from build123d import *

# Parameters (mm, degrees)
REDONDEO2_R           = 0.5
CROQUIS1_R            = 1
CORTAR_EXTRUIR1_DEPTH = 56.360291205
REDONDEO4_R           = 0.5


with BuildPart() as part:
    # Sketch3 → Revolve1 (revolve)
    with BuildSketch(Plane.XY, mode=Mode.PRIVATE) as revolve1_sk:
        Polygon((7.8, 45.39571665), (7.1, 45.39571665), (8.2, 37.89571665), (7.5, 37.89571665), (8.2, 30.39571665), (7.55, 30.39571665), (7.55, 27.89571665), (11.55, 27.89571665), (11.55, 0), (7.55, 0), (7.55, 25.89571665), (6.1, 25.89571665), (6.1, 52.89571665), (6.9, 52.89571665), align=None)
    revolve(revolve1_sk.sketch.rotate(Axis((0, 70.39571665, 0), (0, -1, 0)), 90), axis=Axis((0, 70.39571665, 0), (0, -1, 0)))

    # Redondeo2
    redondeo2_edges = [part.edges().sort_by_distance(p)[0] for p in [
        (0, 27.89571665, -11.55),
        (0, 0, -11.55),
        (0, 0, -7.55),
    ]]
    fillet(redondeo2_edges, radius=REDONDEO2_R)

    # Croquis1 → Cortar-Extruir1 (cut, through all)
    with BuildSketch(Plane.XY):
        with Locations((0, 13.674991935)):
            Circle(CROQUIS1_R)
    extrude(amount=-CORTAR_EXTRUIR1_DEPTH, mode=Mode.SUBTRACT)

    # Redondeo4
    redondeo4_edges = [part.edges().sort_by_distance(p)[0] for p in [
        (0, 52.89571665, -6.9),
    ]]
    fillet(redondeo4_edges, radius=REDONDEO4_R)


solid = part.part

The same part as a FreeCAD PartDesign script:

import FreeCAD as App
import Part
import Sketcher

V = App.Vector


def edges_at(feature, points):
    """Names of the edges that pass closest to the given points."""
    edges = feature.Shape.Edges
    near = lambda p: min(range(len(edges)), key=lambda i: edges[i].distToShape(Part.Vertex(*p))[0])
    return sorted({f"Edge{near(p) + 1}" for p in points})

doc = App.newDocument("Part")
params = doc.addObject("Spreadsheet::Sheet", "Params")
for row, (alias, value) in enumerate([
    ("sketch1_width", "4 mm"),
    ("sketch1_height", "27 mm"),
    ("sketch1_width2", "0.7 mm"),
    ("sketch1_width3", "0.8 mm"),
    ("sketch1_height2", "2.5 mm"),
    ("revolution_angle", "360 deg"),
    ("fillet_radius", "0.5 mm"),
    ("sketch2_diameter", "2 mm"),
    ("fillet2_radius", "0.5 mm"),
], start=1):
    params.set(f"A{row}", alias)
    params.set(f"B{row}", "=" + value)
    params.setAlias(f"B{row}", alias)

body = doc.addObject("PartDesign::Body", "Body")

# Sketch on XY plane
sketch1 = body.newObject("Sketcher::SketchObject", "Sketch")
sketch1.AttachmentSupport = (doc.getObject("XY_Plane"), [""])
sketch1.MapMode = "FlatFace"
sketch1.addGeometry(Part.LineSegment(V(7.1, 45.4, 0), V(7.8, 45.4, 0)), False)
sketch1.addGeometry(Part.LineSegment(V(7.8, 45.4, 0), V(6.9, 52.9, 0)), False)
sketch1.addGeometry(Part.LineSegment(V(6.9, 52.9, 0), V(6.1, 52.9, 0)), False)
sketch1.addGeometry(Part.LineSegment(V(6.1, 52.9, 0), V(6.1, 25.9, 0)), False)
sketch1.addGeometry(Part.LineSegment(V(6.1, 25.9, 0), V(7.5, 25.9, 0)), False)
sketch1.addGeometry(Part.LineSegment(V(7.5, 25.9, 0), V(7.5, 0, 0)), False)
sketch1.addGeometry(Part.LineSegment(V(7.5, 0, 0), V(11.6, 0, 0)), False)
sketch1.addGeometry(Part.LineSegment(V(11.6, 0, 0), V(11.6, 27.9, 0)), False)
sketch1.addGeometry(Part.LineSegment(V(11.6, 27.9, 0), V(7.5, 27.9, 0)), False)
sketch1.addGeometry(Part.LineSegment(V(7.5, 27.9, 0), V(7.5, 30.4, 0)), False)
sketch1.addGeometry(Part.LineSegment(V(7.5, 30.4, 0), V(8.2, 30.4, 0)), False)
sketch1.addGeometry(Part.LineSegment(V(8.2, 30.4, 0), V(7.5, 37.9, 0)), False)
sketch1.addGeometry(Part.LineSegment(V(7.5, 37.9, 0), V(8.2, 37.9, 0)), False)
sketch1.addGeometry(Part.LineSegment(V(8.2, 37.9, 0), V(7.1, 45.4, 0)), False)
sketch1.addConstraint(Sketcher.Constraint("Coincident", 0, 2, 1, 1))
sketch1.addConstraint(Sketcher.Constraint("Coincident", 1, 2, 2, 1))
sketch1.addConstraint(Sketcher.Constraint("Coincident", 2, 2, 3, 1))
sketch1.addConstraint(Sketcher.Constraint("Coincident", 3, 2, 4, 1))
sketch1.addConstraint(Sketcher.Constraint("Coincident", 4, 2, 5, 1))
sketch1.addConstraint(Sketcher.Constraint("Coincident", 5, 2, 6, 1))
sketch1.addConstraint(Sketcher.Constraint("Coincident", 6, 2, 7, 1))
sketch1.addConstraint(Sketcher.Constraint("Coincident", 7, 2, 8, 1))
sketch1.addConstraint(Sketcher.Constraint("Coincident", 8, 2, 9, 1))
sketch1.addConstraint(Sketcher.Constraint("Coincident", 9, 2, 10, 1))
sketch1.addConstraint(Sketcher.Constraint("Coincident", 10, 2, 11, 1))
sketch1.addConstraint(Sketcher.Constraint("Coincident", 11, 2, 12, 1))
sketch1.addConstraint(Sketcher.Constraint("Coincident", 12, 2, 13, 1))
sketch1.addConstraint(Sketcher.Constraint("Coincident", 13, 2, 0, 1))
sketch1.addConstraint(Sketcher.Constraint("Horizontal", 0))
sketch1.addConstraint(Sketcher.Constraint("Horizontal", 2))
sketch1.addConstraint(Sketcher.Constraint("Vertical", 3))
sketch1.addConstraint(Sketcher.Constraint("Horizontal", 4))
sketch1.addConstraint(Sketcher.Constraint("Vertical", 5))
sketch1.addConstraint(Sketcher.Constraint("Horizontal", 6))
sketch1.addConstraint(Sketcher.Constraint("Vertical", 7))
sketch1.addConstraint(Sketcher.Constraint("Horizontal", 8))
sketch1.addConstraint(Sketcher.Constraint("Vertical", 9))
sketch1.addConstraint(Sketcher.Constraint("Horizontal", 10))
sketch1.addConstraint(Sketcher.Constraint("Horizontal", 12))
sketch1.addConstraint(Sketcher.Constraint("PointOnObject", 5, 2, -1))
sketch1.addConstraint(Sketcher.Constraint("Vertical", 5, 2, 8, 2))
sketch1.addConstraint(Sketcher.Constraint("Vertical", 10, 2, 12, 2))
sketch1.addConstraint(Sketcher.Constraint("Equal", 0, 12))
sketch1.addConstraint(Sketcher.Constraint("DistanceX", 6, 1, 6, 2, 4.0))
sketch1.addConstraint(Sketcher.Constraint("DistanceY", 3, 2, 3, 1, 27.0))
sketch1.addConstraint(Sketcher.Constraint("DistanceX", 0, 1, 0, 2, 0.7))
sketch1.addConstraint(Sketcher.Constraint("DistanceX", 2, 2, 2, 1, 0.8))
sketch1.addConstraint(Sketcher.Constraint("DistanceY", 9, 1, 9, 2, 2.5))
sketch1.addConstraint(Sketcher.Constraint("DistanceY", 4, 2, 7, 2, 2.0))
sketch1.addConstraint(Sketcher.Constraint("DistanceY", 9, 2, 0, 2, 15.0))
sketch1.addConstraint(Sketcher.Constraint("DistanceY", 8, 2, 11, 2, 10.0))
sketch1.addConstraint(Sketcher.Constraint("DistanceX", 2, 2, 13, 2, 1.0))
sketch1.addConstraint(Sketcher.Constraint("DistanceX", 4, 1, 4, 2, 1.45))
sketch1.addConstraint(Sketcher.Constraint("DistanceX", 10, 1, 10, 2, 0.65))
sketch1.addConstraint(Sketcher.Constraint("DistanceX", -1, 1, 0, 2, 7.8))
sketch1.addConstraint(Sketcher.Constraint("DistanceY", 5, 2, 5, 1, 25.895717))
sketch1.setExpression("Constraints[29]", "Params.sketch1_width")
sketch1.setExpression("Constraints[30]", "Params.sketch1_height")
sketch1.setExpression("Constraints[31]", "Params.sketch1_width2")
sketch1.setExpression("Constraints[32]", "Params.sketch1_width3")
sketch1.setExpression("Constraints[33]", "Params.sketch1_height2")
revolution = body.newObject("PartDesign::Revolution", "Revolution")
revolution.Profile = sketch1
revolution.ReferenceAxis = (sketch1, ["V_Axis"])
revolution.setExpression("Angle", "Params.revolution_angle")
doc.recompute()

fillet = body.newObject("PartDesign::Fillet", "Fillet")
fillet.Base = (revolution, edges_at(revolution, [(0, 27.896, -11.55), (0, 0, -11.55), (0, 0, -7.55)]))
fillet.setExpression("Radius", "Params.fillet_radius")

# Sketch on XY plane
sketch2 = body.newObject("Sketcher::SketchObject", "Sketch001")
sketch2.AttachmentSupport = (doc.getObject("XY_Plane"), [""])
sketch2.MapMode = "FlatFace"
sketch2.addGeometry(Part.Circle(V(0, 13.7, 0), V(0, 0, 1), 1), False)
sketch2.addConstraint(Sketcher.Constraint("PointOnObject", 0, 3, -2))
sketch2.addConstraint(Sketcher.Constraint("Diameter", 0, 2.0))
sketch2.addConstraint(Sketcher.Constraint("DistanceY", -1, 1, 0, 3, 13.674992))
sketch2.setExpression("Constraints[1]", "Params.sketch2_diameter")
pocket1 = body.newObject("PartDesign::Pocket", "Pocket")
pocket1.Profile = sketch2
pocket1.Type = "ThroughAll"
doc.recompute()

fillet2 = body.newObject("PartDesign::Fillet", "Fillet001")
fillet2.Base = (pocket1, edges_at(pocket1, [(0, 52.896, -6.9)]))
fillet2.setExpression("Radius", "Params.fillet2_radius")

doc.recompute()
